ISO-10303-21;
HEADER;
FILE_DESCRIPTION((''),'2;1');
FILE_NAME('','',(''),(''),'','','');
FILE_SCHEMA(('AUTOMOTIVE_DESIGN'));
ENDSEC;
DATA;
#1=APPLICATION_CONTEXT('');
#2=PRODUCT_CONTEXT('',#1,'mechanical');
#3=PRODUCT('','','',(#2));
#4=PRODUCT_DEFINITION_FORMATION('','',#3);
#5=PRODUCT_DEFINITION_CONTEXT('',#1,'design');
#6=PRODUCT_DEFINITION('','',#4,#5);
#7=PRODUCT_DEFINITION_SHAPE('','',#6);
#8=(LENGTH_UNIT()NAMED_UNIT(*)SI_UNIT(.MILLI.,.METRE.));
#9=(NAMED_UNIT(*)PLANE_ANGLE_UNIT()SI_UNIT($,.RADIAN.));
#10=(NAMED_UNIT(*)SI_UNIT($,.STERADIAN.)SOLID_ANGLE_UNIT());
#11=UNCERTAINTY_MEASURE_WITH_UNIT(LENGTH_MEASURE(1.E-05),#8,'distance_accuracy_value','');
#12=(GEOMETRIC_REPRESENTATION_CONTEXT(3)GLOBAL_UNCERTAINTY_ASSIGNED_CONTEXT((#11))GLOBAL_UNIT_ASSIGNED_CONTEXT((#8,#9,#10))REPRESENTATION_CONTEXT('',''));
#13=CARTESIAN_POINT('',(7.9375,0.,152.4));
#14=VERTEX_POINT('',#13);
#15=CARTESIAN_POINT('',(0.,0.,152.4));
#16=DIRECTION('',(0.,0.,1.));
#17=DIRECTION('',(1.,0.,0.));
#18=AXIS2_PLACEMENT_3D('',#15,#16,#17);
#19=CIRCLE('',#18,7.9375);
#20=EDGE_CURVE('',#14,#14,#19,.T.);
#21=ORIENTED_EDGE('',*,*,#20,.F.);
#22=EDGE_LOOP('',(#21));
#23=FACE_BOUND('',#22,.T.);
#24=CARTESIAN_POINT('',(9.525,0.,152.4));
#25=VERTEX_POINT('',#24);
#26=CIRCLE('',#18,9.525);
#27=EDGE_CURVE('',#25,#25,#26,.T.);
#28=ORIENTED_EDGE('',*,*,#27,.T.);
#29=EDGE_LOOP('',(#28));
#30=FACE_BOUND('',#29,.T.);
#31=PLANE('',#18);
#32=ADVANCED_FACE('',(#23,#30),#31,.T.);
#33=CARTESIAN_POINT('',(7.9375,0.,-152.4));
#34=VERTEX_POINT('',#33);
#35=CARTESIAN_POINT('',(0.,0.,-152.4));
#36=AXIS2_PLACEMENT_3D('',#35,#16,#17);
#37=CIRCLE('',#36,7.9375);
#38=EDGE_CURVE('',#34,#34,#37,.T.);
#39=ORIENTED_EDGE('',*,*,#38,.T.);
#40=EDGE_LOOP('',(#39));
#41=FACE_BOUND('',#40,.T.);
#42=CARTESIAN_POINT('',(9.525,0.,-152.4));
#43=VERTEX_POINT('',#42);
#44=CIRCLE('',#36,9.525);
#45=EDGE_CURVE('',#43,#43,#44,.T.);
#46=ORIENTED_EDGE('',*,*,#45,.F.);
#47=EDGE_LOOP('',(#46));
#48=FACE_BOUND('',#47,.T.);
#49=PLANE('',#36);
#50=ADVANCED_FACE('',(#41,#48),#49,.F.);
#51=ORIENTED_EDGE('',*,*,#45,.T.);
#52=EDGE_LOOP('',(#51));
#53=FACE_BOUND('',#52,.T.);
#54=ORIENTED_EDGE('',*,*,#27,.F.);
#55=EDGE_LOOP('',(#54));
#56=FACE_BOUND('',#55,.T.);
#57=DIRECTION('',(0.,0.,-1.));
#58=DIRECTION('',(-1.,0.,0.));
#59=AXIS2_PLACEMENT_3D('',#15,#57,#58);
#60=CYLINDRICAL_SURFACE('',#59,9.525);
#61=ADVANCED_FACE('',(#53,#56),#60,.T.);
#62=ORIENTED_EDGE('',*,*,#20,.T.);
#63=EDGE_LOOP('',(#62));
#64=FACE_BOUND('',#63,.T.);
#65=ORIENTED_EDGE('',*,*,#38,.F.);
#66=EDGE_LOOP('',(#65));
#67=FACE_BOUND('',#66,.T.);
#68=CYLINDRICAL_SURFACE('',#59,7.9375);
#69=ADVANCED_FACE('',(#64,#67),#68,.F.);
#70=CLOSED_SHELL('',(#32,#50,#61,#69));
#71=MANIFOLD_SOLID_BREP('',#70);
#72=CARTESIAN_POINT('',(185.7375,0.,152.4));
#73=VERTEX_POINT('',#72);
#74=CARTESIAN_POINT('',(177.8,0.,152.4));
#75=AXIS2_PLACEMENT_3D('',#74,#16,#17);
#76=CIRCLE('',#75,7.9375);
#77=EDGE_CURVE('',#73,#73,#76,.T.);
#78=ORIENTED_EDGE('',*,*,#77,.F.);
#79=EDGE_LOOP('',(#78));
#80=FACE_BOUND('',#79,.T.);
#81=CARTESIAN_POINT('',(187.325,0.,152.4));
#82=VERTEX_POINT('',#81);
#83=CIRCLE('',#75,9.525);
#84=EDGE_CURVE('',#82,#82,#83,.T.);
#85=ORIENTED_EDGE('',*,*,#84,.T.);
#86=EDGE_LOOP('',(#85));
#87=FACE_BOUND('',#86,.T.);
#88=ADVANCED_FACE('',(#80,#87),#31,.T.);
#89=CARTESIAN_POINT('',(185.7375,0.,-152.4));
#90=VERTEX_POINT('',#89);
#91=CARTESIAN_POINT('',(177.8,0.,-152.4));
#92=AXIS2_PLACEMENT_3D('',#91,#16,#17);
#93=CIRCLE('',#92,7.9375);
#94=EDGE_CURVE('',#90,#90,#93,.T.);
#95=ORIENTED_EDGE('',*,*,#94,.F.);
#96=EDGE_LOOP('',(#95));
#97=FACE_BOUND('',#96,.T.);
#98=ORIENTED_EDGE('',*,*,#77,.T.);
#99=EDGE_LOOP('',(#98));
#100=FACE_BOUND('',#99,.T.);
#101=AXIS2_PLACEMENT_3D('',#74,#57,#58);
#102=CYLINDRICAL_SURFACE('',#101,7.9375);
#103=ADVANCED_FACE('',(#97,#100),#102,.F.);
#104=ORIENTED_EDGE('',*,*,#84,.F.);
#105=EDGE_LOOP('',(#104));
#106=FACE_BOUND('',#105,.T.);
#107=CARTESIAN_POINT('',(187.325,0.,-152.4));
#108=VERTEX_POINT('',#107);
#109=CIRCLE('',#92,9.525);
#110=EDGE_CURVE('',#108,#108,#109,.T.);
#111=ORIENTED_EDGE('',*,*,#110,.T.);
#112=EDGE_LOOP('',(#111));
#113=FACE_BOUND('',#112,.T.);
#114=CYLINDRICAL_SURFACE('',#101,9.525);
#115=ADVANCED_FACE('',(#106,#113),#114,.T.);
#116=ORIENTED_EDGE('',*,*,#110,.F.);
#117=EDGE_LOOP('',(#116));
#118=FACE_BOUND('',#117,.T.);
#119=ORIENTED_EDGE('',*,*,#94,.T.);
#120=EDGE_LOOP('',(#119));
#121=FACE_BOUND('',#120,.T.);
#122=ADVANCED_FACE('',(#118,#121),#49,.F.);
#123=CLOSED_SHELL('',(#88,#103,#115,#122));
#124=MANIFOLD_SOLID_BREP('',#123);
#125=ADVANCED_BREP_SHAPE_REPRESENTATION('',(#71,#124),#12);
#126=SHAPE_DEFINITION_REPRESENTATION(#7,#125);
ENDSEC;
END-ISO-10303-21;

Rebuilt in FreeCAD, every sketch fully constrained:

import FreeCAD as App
import Part
import Sketcher

V = App.Vector
Q = App.Units.Quantity

doc = App.newDocument("Part")
params = doc.addObject("Spreadsheet::Sheet", "Params")
for row, (alias, value) in enumerate([
    ("sketch1_diameter", "0.75 in"),
    ("sketch1_diameter2", "0.625 in"),
    ("pad1_length", "12 in"),
    ("sketch2_diameter", "0.75 in"),
    ("sketch2_diameter2", "0.625 in"),
    ("pad2_length", "12 in"),
], start=1):
    params.set(f"A{row}", alias)
    params.set(f"B{row}", "=" + value)
    params.setAlias(f"B{row}", alias)

body = doc.addObject("PartDesign::Body", "Body")

sketch1 = body.newObject("Sketcher::SketchObject", "Sketch")
sketch1.AttachmentSupport = (doc.getObject("XY_Plane"), [""])
sketch1.MapMode = "FlatFace"
sketch1.addGeometry(Part.Circle(V(0, 0, 0), V(0, 0, 1), 9.525), False)
sketch1.addGeometry(Part.Circle(V(0, 0, 0), V(0, 0, 1), 7.9375), False)
sketch1.addConstraint(Sketcher.Constraint("Coincident", 0, 3, -1, 1))
sketch1.addConstraint(Sketcher.Constraint("Coincident", 1, 3, -1, 1))
sketch1.addConstraint(Sketcher.Constraint("Diameter", 0, Q("0.75 in")))
sketch1.addConstraint(Sketcher.Constraint("Diameter", 1, Q("0.625 in")))
sketch1.setExpression("Constraints[2]", "Params.sketch1_diameter")
sketch1.setExpression("Constraints[3]", "Params.sketch1_diameter2")
pad1 = body.newObject("PartDesign::Pad", "Pad")
pad1.Profile = sketch1
pad1.setExpression("Length", "Params.pad1_length")
pad1.Midplane = True
body2 = doc.addObject("PartDesign::Body", "Body001")

sketch2 = body2.newObject("Sketcher::SketchObject", "Sketch001")
sketch2.AttachmentSupport = (doc.getObject("XY_Plane001"), [""])
sketch2.MapMode = "FlatFace"
sketch2.addGeometry(Part.Circle(V(177.8, 0, 0), V(0, 0, 1), 9.525), False)
sketch2.addGeometry(Part.Circle(V(177.8, 0, 0), V(0, 0, 1), 7.9375), False)
sketch2.addConstraint(Sketcher.Constraint("Coincident", 1, 3, 0, 3))
sketch2.addConstraint(Sketcher.Constraint("PointOnObject", 0, 3, -1))
sketch2.addConstraint(Sketcher.Constraint("Diameter", 0, Q("0.75 in")))
sketch2.addConstraint(Sketcher.Constraint("Diameter", 1, Q("0.625 in")))
sketch2.addConstraint(Sketcher.Constraint("DistanceX", -1, 1, 0, 3, Q("7 in")))
sketch2.setExpression("Constraints[2]", "Params.sketch2_diameter")
sketch2.setExpression("Constraints[3]", "Params.sketch2_diameter2")
pad2 = body2.newObject("PartDesign::Pad", "Pad001")
pad2.Profile = sketch2
pad2.setExpression("Length", "Params.pad2_length")
pad2.Midplane = True

doc.recompute()
